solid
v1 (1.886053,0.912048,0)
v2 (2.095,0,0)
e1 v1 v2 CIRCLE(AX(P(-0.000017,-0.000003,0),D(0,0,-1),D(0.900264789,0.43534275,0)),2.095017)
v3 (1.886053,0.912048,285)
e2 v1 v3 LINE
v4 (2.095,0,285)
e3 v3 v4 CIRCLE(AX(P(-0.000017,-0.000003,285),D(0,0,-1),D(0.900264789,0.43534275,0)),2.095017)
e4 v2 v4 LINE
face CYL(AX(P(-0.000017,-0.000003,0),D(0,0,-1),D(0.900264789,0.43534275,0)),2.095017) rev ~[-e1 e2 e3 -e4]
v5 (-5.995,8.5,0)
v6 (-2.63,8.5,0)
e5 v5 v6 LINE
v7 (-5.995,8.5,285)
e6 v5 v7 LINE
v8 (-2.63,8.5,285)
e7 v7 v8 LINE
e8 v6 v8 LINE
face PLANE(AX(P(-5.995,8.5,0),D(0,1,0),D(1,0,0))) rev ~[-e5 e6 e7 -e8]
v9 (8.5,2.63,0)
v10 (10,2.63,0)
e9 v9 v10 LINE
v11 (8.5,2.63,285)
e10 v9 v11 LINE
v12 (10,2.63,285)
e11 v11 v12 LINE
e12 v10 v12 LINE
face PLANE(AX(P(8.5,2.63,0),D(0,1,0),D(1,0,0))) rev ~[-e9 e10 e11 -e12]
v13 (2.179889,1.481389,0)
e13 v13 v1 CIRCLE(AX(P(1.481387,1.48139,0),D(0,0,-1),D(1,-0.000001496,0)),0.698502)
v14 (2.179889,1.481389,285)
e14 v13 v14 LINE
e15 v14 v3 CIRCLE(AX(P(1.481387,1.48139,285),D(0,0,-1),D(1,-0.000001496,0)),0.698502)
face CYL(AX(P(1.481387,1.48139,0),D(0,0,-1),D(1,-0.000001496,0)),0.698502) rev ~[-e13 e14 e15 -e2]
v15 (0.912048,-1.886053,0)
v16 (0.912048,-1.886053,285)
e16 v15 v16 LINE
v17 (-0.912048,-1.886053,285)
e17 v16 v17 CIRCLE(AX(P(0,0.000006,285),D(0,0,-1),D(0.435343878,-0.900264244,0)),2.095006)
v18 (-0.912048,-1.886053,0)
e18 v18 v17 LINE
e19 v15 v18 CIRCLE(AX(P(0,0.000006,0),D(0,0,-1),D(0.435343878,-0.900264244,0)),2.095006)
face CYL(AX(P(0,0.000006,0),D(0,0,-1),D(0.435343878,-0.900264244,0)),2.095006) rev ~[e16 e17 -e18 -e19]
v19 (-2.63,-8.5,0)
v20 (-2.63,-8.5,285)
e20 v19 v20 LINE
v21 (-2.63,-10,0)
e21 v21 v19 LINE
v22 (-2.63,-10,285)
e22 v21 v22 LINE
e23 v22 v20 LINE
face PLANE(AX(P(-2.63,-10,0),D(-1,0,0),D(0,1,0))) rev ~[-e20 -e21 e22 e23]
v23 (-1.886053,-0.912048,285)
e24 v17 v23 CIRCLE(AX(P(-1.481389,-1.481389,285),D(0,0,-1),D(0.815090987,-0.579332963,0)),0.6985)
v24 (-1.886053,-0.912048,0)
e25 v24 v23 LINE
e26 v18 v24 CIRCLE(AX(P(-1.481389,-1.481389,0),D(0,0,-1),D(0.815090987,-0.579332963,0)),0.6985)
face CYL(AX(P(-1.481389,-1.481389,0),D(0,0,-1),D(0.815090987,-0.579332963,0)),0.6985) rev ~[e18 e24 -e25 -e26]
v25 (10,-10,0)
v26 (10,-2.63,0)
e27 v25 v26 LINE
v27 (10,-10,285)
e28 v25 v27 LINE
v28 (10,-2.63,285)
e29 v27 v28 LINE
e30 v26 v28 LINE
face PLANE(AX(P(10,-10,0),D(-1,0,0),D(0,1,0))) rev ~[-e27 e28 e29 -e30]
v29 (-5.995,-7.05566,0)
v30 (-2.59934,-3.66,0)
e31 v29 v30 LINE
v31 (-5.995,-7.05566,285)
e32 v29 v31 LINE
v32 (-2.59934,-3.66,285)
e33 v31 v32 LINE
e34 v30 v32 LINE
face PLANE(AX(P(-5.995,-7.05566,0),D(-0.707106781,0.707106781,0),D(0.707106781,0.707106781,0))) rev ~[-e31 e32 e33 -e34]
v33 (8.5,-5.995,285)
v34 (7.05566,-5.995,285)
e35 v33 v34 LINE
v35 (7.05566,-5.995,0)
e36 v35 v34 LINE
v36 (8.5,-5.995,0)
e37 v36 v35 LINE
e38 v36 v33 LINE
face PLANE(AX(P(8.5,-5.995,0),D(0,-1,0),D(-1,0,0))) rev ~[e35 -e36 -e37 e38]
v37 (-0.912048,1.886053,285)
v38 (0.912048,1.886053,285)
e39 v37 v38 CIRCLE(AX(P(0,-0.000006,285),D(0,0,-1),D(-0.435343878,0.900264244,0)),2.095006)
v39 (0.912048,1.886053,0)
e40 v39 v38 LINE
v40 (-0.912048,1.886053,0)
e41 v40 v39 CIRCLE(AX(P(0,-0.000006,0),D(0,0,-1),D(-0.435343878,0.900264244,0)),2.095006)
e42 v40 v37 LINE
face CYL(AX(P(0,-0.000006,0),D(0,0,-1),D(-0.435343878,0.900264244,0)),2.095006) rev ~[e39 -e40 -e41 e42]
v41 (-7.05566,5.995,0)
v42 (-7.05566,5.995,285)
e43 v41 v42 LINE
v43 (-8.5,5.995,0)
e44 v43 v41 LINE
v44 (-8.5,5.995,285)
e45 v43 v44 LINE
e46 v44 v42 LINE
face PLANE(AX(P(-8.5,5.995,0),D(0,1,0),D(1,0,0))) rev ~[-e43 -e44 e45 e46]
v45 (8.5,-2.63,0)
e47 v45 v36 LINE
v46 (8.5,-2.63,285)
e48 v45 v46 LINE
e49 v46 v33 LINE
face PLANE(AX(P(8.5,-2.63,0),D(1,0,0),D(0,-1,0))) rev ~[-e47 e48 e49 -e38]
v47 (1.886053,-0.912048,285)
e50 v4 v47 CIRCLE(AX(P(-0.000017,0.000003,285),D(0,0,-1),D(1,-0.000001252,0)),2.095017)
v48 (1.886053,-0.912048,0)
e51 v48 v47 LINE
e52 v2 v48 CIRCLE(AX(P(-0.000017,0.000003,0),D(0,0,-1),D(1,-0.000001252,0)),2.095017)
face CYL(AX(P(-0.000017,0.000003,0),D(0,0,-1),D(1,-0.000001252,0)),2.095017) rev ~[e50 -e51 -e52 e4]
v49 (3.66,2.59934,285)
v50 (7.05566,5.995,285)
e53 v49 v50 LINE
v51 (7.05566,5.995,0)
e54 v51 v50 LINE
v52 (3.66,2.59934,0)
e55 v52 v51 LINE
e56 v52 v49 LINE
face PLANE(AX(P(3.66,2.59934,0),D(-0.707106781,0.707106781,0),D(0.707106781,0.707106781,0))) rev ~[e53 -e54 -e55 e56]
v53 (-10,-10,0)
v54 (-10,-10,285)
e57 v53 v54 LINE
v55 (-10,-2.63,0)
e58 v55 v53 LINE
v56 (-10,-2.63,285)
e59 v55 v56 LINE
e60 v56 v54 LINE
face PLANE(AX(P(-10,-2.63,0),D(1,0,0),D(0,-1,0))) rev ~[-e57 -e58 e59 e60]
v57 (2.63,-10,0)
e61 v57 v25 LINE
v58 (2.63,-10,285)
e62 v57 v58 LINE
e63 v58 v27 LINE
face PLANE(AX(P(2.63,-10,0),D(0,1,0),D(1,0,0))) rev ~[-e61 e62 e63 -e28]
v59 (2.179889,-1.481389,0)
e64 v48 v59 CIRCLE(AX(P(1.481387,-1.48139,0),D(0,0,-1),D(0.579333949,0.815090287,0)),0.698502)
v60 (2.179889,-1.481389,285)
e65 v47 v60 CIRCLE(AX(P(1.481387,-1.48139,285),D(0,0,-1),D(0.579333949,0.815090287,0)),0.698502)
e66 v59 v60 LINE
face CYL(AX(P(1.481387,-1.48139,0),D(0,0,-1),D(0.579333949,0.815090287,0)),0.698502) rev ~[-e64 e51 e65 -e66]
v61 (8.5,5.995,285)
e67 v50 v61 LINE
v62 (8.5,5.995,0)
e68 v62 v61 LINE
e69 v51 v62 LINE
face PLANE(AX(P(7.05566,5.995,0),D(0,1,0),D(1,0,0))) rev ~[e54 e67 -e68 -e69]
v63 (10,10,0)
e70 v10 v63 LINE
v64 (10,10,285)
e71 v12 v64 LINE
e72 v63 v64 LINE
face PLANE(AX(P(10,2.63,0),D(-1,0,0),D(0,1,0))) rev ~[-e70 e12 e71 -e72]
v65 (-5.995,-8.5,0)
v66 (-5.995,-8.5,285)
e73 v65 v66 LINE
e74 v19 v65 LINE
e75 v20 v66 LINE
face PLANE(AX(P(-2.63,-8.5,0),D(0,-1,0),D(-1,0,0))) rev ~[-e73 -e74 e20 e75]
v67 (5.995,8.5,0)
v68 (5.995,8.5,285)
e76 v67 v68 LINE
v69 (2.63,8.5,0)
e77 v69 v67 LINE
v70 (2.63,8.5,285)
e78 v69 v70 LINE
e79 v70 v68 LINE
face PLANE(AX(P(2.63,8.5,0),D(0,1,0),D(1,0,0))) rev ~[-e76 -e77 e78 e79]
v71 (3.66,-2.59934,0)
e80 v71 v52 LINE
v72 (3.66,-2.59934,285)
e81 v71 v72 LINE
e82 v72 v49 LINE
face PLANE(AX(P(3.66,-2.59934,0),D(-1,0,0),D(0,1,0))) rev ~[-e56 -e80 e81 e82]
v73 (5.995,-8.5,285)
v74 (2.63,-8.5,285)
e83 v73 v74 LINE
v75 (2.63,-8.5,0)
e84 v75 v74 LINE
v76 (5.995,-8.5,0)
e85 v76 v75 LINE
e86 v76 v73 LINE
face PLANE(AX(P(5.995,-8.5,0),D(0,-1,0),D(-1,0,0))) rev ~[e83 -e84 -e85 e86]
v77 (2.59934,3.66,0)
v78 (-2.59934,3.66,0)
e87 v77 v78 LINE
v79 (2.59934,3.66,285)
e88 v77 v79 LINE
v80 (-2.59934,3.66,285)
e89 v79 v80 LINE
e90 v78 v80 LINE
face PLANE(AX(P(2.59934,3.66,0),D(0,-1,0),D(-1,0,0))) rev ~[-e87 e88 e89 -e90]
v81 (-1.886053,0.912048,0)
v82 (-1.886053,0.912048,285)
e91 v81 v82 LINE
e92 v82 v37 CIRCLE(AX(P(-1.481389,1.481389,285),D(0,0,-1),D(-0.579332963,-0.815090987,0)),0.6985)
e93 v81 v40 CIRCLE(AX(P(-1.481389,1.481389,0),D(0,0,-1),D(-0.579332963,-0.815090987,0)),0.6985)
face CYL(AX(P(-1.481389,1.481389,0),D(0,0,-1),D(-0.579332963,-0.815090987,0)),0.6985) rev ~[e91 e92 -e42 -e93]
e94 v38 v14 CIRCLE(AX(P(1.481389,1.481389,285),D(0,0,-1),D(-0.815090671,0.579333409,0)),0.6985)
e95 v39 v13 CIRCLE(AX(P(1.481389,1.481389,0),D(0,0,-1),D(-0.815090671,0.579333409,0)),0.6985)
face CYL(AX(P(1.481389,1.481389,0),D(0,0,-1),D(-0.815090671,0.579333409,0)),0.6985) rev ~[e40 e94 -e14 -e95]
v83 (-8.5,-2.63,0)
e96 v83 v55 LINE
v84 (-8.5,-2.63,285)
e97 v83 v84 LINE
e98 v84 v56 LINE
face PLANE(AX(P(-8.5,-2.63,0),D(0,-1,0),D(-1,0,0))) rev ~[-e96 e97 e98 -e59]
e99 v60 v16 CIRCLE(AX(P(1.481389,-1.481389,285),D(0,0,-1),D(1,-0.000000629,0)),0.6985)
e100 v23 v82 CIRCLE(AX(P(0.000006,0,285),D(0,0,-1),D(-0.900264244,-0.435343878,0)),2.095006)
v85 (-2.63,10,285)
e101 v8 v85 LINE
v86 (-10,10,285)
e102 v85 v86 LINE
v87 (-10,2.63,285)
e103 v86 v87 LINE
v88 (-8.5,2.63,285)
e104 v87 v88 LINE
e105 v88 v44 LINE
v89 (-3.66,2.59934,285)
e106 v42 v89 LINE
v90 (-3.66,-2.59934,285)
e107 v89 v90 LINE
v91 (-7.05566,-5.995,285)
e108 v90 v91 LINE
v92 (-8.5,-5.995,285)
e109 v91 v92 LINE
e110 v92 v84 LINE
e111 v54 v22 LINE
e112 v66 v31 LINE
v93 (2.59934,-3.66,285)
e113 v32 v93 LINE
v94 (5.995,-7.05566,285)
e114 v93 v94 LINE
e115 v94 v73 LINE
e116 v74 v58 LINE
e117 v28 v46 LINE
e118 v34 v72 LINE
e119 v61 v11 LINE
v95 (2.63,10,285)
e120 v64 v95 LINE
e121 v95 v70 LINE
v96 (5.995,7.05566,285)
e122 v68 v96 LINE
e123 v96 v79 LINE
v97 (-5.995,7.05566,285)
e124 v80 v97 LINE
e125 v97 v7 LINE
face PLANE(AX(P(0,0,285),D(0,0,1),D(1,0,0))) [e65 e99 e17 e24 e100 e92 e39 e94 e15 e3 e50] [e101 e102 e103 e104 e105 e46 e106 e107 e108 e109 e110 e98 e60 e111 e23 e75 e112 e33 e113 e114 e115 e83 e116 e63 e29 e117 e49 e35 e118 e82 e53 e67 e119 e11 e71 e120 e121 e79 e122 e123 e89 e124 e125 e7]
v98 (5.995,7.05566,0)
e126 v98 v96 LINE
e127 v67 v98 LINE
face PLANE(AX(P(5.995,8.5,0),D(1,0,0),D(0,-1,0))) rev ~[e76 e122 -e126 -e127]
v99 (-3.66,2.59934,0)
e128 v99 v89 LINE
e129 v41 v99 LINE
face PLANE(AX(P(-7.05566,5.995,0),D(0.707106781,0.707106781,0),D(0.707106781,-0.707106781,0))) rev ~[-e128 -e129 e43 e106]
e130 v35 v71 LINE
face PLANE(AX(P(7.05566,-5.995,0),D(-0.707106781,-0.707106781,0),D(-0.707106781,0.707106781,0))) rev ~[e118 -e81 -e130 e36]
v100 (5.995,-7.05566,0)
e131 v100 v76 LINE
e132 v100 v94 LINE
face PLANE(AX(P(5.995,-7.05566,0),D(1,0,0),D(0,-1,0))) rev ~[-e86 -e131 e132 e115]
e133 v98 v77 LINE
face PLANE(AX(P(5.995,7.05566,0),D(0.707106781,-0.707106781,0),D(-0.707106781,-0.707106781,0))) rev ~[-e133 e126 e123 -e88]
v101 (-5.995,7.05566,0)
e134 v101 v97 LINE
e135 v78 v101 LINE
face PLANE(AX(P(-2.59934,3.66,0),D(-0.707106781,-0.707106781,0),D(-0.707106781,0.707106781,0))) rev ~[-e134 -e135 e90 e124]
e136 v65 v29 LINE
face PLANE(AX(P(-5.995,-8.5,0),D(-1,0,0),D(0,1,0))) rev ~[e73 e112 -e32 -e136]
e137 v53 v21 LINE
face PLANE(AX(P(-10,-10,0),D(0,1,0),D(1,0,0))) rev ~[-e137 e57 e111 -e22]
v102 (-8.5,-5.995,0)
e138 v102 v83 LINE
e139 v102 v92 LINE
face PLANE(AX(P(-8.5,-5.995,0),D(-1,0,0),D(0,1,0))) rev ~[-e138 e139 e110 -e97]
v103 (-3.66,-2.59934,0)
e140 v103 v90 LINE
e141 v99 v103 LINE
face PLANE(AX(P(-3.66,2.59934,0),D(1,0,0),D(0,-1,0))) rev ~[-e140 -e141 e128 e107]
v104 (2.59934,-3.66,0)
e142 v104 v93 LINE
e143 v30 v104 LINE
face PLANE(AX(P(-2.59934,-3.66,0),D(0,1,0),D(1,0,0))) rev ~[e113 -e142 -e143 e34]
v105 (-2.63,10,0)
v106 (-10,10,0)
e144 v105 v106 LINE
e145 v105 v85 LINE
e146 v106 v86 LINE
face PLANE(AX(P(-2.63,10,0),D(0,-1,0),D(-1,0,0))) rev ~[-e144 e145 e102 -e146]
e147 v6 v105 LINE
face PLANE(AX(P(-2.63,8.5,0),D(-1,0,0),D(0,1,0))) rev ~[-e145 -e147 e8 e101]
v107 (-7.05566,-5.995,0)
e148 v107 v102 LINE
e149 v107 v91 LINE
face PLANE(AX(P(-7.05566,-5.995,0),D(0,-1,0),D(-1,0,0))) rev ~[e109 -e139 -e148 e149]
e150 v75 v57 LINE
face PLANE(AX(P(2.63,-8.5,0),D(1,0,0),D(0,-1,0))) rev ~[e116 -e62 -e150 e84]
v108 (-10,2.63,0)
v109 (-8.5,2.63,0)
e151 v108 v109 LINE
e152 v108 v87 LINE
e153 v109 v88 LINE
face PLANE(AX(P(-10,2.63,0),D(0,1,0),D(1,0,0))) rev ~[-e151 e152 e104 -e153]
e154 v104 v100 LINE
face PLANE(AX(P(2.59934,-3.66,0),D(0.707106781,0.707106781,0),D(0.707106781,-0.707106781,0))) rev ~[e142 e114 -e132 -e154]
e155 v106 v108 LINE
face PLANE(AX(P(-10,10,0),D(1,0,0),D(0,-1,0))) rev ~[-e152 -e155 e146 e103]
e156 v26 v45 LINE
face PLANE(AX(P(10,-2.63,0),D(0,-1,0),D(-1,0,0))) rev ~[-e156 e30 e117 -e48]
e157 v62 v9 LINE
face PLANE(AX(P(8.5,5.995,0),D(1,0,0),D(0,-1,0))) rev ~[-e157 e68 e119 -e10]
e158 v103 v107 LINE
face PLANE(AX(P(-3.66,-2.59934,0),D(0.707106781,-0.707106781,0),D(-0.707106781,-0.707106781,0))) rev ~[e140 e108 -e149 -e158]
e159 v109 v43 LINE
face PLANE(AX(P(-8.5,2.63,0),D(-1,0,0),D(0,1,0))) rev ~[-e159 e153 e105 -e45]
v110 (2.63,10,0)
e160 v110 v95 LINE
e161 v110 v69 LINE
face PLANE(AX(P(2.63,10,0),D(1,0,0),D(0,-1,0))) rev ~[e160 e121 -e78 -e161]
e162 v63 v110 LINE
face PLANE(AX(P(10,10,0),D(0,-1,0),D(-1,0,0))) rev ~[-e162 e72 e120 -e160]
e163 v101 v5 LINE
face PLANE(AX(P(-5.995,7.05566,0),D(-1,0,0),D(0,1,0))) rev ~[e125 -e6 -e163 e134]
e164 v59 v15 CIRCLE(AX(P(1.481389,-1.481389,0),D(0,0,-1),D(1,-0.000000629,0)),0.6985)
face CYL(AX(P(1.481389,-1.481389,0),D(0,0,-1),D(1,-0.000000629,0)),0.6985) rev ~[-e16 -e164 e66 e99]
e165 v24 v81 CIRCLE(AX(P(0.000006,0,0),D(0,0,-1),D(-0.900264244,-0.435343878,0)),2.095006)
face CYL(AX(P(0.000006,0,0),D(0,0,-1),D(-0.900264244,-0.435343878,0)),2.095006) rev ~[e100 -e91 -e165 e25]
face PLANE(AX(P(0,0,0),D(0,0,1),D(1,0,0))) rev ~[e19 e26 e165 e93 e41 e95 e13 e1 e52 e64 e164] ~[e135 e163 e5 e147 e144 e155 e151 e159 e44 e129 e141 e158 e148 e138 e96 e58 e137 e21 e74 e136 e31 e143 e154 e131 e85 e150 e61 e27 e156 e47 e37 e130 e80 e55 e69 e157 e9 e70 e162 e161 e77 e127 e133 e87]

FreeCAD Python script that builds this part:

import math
import FreeCAD as App
import Part
import Sketcher

V = App.Vector
Q = App.Units.Quantity


def add_polygon(sketch, points):
    """Adds a closed chain of lines whose ends are joined by coincident constraints."""
    first, n = sketch.GeometryCount, len(points)
    for a, b in zip(points, points[1:] + points[:1]):
        sketch.addGeometry(Part.LineSegment(App.Vector(*a, 0), App.Vector(*b, 0)), False)
    for i in range(n):
        sketch.addConstraint(Sketcher.Constraint("Coincident", first + i, 2, first + (i + 1) % n, 1))

doc = App.newDocument("Part")
params = doc.addObject("Spreadsheet::Sheet", "Params")
for row, (alias, value) in enumerate([
    ("sketch1_width", "1.5 mm"),
    ("sketch1_width2", "7.37 mm"),
    ("pad1_length", "285 mm"),
], start=1):
    params.set(f"A{row}", alias)
    params.set(f"B{row}", "=" + value)
    params.setAlias(f"B{row}", alias)

body = doc.addObject("PartDesign::Body", "Body")

sketch1 = body.newObject("Sketcher::SketchObject", "Sketch")
sketch1.AttachmentSupport = (doc.getObject("XY_Plane"), [""])
sketch1.MapMode = "FlatFace"
add_polygon(sketch1, [(10, 2.63), (10, 10), (2.63, 10), (2.63, 8.5), (5.995, 8.5), (5.995, 7.05566), (2.59934, 3.66), (-2.59934, 3.66), (-5.995, 7.05566), (-5.995, 8.5), (-2.63, 8.5), (-2.63, 10), (-10, 10), (-10, 2.63), (-8.5, 2.63), (-8.5, 5.995), (-7.05566, 5.995), (-3.66, 2.59934), (-3.66, -2.59934), (-7.05566, -5.995), (-8.5, -5.995), (-8.5, -2.63), (-10, -2.63), (-10, -10), (-2.63, -10), (-2.63, -8.5), (-5.995, -8.5), (-5.995, -7.05566), (-2.59934, -3.66), (2.59934, -3.66), (5.995, -7.05566), (5.995, -8.5), (2.63, -8.5), (2.63, -10), (10, -10), (10, -2.63), (8.5, -2.63), (8.5, -5.995), (7.05566, -5.995), (3.66, -2.59934), (3.66, 2.59934), (7.05566, 5.995), (8.5, 5.995), (8.5, 2.63)])
sketch1.addGeometry(Part.ArcOfCircle(Part.Circle(V(1.481387, 1.48139, 0), V(0, 0, 1), 0.698502), math.radians(-54.59629), math.radians(-0.000086)), False)
sketch1.addGeometry(Part.ArcOfCircle(Part.Circle(V(-0.000017, -0.000003, 0), V(0, 0, 1), 2.095017), math.radians(0.000072), math.radians(25.807106)), False)
sketch1.addGeometry(Part.ArcOfCircle(Part.Circle(V(-0.000017, 0.000003, 0), V(0, 0, 1), 2.095017), math.radians(-25.807106), math.radians(-0.000072)), False)
sketch1.addGeometry(Part.ArcOfCircle(Part.Circle(V(1.481387, -1.48139, 0), V(0, 0, 1), 0.698502), math.radians(0.000086), math.radians(54.59629)), False)
sketch1.addGeometry(Part.ArcOfCircle(Part.Circle(V(1.481389, -1.481389, 0), V(0, 0, 1), 0.6985), math.radians(-144.596328), math.radians(-0.000036)), False)
sketch1.addGeometry(Part.ArcOfCircle(Part.Circle(V(0, 0.000006, 0), V(0, 0, 1), 2.095006), math.radians(-115.807177), math.radians(-64.192823)), False)
sketch1.addGeometry(Part.ArcOfCircle(Part.Circle(V(-1.481389, -1.481389, 0), V(0, 0, 1), 0.6985), math.radians(125.40364), math.radians(324.59636)), False)
sketch1.addGeometry(Part.ArcOfCircle(Part.Circle(V(0.000006, 0, 0), V(0, 0, 1), 2.095006), math.radians(154.192823), math.radians(205.807177)), False)
sketch1.addGeometry(Part.ArcOfCircle(Part.Circle(V(-1.481389, 1.481389, 0), V(0, 0, 1), 0.6985), math.radians(35.40364), math.radians(234.59636)), False)
sketch1.addGeometry(Part.ArcOfCircle(Part.Circle(V(0, -0.000006, 0), V(0, 0, 1), 2.095006), math.radians(64.192823), math.radians(115.807177)), False)
sketch1.addGeometry(Part.ArcOfCircle(Part.Circle(V(1.481389, 1.481389, 0), V(0, 0, 1), 0.6985), math.radians(0.000036), math.radians(144.596328)), False)
sketch1.addConstraint(Sketcher.Constraint("Coincident", 44, 1, 45, 2))
sketch1.addConstraint(Sketcher.Constraint("Coincident", 45, 1, 46, 2))
sketch1.addConstraint(Sketcher.Constraint("Coincident", 46, 1, 47, 2))
sketch1.addConstraint(Sketcher.Constraint("Coincident", 47, 1, 48, 2))
sketch1.addConstraint(Sketcher.Constraint("Coincident", 48, 1, 49, 2))
sketch1.addConstraint(Sketcher.Constraint("Coincident", 49, 1, 50, 2))
sketch1.addConstraint(Sketcher.Constraint("Coincident", 50, 1, 51, 2))
sketch1.addConstraint(Sketcher.Constraint("Coincident", 51, 1, 52, 2))
sketch1.addConstraint(Sketcher.Constraint("Coincident", 52, 1, 53, 2))
sketch1.addConstraint(Sketcher.Constraint("Coincident", 53, 1, 54, 2))
sketch1.addConstraint(Sketcher.Constraint("Coincident", 54, 1, 44, 2))
sketch1.addConstraint(Sketcher.Constraint("Vertical", 0))
sketch1.addConstraint(Sketcher.Constraint("Horizontal", 1))
sketch1.addConstraint(Sketcher.Constraint("Vertical", 2))
sketch1.addConstraint(Sketcher.Constraint("Horizontal", 3))
sketch1.addConstraint(Sketcher.Constraint("Vertical", 4))
sketch1.addConstraint(Sketcher.Constraint("Horizontal", 6))
sketch1.addConstraint(Sketcher.Constraint("Vertical", 8))
sketch1.addConstraint(Sketcher.Constraint("Horizontal", 9))
sketch1.addConstraint(Sketcher.Constraint("Vertical", 10))
sketch1.addConstraint(Sketcher.Constraint("Horizontal", 11))
sketch1.addConstraint(Sketcher.Constraint("Vertical", 12))
sketch1.addConstraint(Sketcher.Constraint("Horizontal", 13))
sketch1.addConstraint(Sketcher.Constraint("Vertical", 14))
sketch1.addConstraint(Sketcher.Constraint("Horizontal", 15))
sketch1.addConstraint(Sketcher.Constraint("Vertical", 17))
sketch1.addConstraint(Sketcher.Constraint("Horizontal", 19))
sketch1.addConstraint(Sketcher.Constraint("Vertical", 20))
sketch1.addConstraint(Sketcher.Constraint("Horizontal", 21))
sketch1.addConstraint(Sketcher.Constraint("Vertical", 22))
sketch1.addConstraint(Sketcher.Constraint("Horizontal", 23))
sketch1.addConstraint(Sketcher.Constraint("Vertical", 24))
sketch1.addConstraint(Sketcher.Constraint("Horizontal", 25))
sketch1.addConstraint(Sketcher.Constraint("Vertical", 26))
sketch1.addConstraint(Sketcher.Constraint("Horizontal", 28))
sketch1.addConstraint(Sketcher.Constraint("Vertical", 30))
sketch1.addConstraint(Sketcher.Constraint("Horizontal", 31))
sketch1.addConstraint(Sketcher.Constraint("Vertical", 32))
sketch1.addConstraint(Sketcher.Constraint("Horizontal", 33))
sketch1.addConstraint(Sketcher.Constraint("Vertical", 34))
sketch1.addConstraint(Sketcher.Constraint("Horizontal", 35))
sketch1.addConstraint(Sketcher.Constraint("Vertical", 36))
sketch1.addConstraint(Sketcher.Constraint("Horizontal", 37))
sketch1.addConstraint(Sketcher.Constraint("Vertical", 39))
sketch1.addConstraint(Sketcher.Constraint("Horizontal", 41))
sketch1.addConstraint(Sketcher.Constraint("Vertical", 42))
sketch1.addConstraint(Sketcher.Constraint("Horizontal", 43))
sketch1.addConstraint(Sketcher.Constraint("Coincident", 49, 3, -1, 1))
sketch1.addConstraint(Sketcher.Constraint("Coincident", 51, 3, -1, 1))
sketch1.addConstraint(Sketcher.Constraint("Coincident", 53, 3, -1, 1))
sketch1.addConstraint(Sketcher.Constraint("Coincident", 46, 3, 45, 3))
sketch1.addConstraint(Sketcher.Constraint("Coincident", 48, 3, 47, 3))
sketch1.addConstraint(Sketcher.Constraint("Coincident", 54, 3, 44, 3))
sketch1.addConstraint(Sketcher.Constraint("Equal", 44, 47))
sketch1.addConstraint(Sketcher.Constraint("Equal", 48, 50))
sketch1.addConstraint(Sketcher.Constraint("Equal", 49, 51))
sketch1.addConstraint(Sketcher.Constraint("Equal", 50, 52))
sketch1.addConstraint(Sketcher.Constraint("Equal", 51, 53))
sketch1.addConstraint(Sketcher.Constraint("Symmetric", 44, 3, 50, 3, -1, 1))
sketch1.addConstraint(Sketcher.Constraint("Symmetric", 47, 3, 52, 3, -1, 1))
sketch1.addConstraint(Sketcher.Constraint("Symmetric", 0, 2, 22, 2, -1, 1))
sketch1.addConstraint(Sketcher.Constraint("Symmetric", 2, 2, 24, 2, -1, 1))
sketch1.addConstraint(Sketcher.Constraint("Symmetric", 4, 2, 26, 2, -1, 1))
sketch1.addConstraint(Sketcher.Constraint("Symmetric", 5, 2, 27, 2, -1, 1))
sketch1.addConstraint(Sketcher.Constraint("Symmetric", 7, 2, 29, 2, -1, 1))
sketch1.addConstraint(Sketcher.Constraint("Symmetric", 9, 2, 31, 2, -1, 1))
sketch1.addConstraint(Sketcher.Constraint("Symmetric", 11, 2, 33, 2, -1, 1))
sketch1.addConstraint(Sketcher.Constraint("Symmetric", 13, 2, 35, 2, -1, 1))
sketch1.addConstraint(Sketcher.Constraint("Symmetric", 15, 2, 37, 2, -1, 1))
sketch1.addConstraint(Sketcher.Constraint("Symmetric", 16, 2, 38, 2, -1, 1))
sketch1.addConstraint(Sketcher.Constraint("Symmetric", 18, 2, 40, 2, -1, 1))
sketch1.addConstraint(Sketcher.Constraint("Symmetric", 20, 2, 42, 2, -1, 1))
sketch1.addConstraint(Sketcher.Constraint("Symmetric", 47, 3, 50, 3, -2))
sketch1.addConstraint(Sketcher.Constraint("Symmetric", 4, 2, 7, 2, -2))
sketch1.addConstraint(Sketcher.Constraint("Symmetric", 2, 2, 9, 2, -2))
sketch1.addConstraint(Sketcher.Constraint("Symmetric", 0, 2, 11, 2, -2))
sketch1.addConstraint(Sketcher.Constraint("Symmetric", 20, 2, 35, 2, -2))
sketch1.addConstraint(Sketcher.Constraint("Symmetric", 18, 2, 37, 2, -2))
sketch1.addConstraint(Sketcher.Constraint("PointOnObject", 45, 1, -1))
sketch1.addConstraint(Sketcher.Constraint("Perpendicular", 5, 7))
sketch1.addConstraint(Sketcher.Constraint("Parallel", 7, 16))
sketch1.addConstraint(Sketcher.Constraint("Perpendicular", 16, 18))
sketch1.addConstraint(Sketcher.Constraint("Perpendicular", 27, 29))
sketch1.addConstraint(Sketcher.Constraint("Perpendicular", 38, 40))
sketch1.addConstraint(Sketcher.Constraint("Horizontal", 17, 2, 38, 2))
sketch1.addConstraint(Sketcher.Constraint("Horizontal", 50, 3, 47, 1))
sketch1.addConstraint(Sketcher.Constraint("Horizontal", 46, 1, 50, 1))
sketch1.addConstraint(Sketcher.Constraint("Horizontal", 44, 1, 51, 1))
sketch1.addConstraint(Sketcher.Constraint("Horizontal", 52, 3, 54, 1))
sketch1.addConstraint(Sketcher.Constraint("Equal", 33, 0))
sketch1.addConstraint(Sketcher.Constraint("Equal", 43, 2))
sketch1.addConstraint(Sketcher.Constraint("Equal", 41, 4))
sketch1.addConstraint(Sketcher.Constraint("Equal", 31, 14))
sketch1.addConstraint(Sketcher.Constraint("Equal", 28, 17))
sketch1.addConstraint(Sketcher.Constraint("Equal", 7, 16))
sketch1.addConstraint(Sketcher.Constraint("DistanceX", 13, 1, 13, 2, Q("1.5 mm")))
sketch1.addConstraint(Sketcher.Constraint("DistanceX", -1, 1, 0, 2, Q("10 mm")))
sketch1.addConstraint(Sketcher.Constraint("DistanceX", 1, 2, 1, 1, Q("7.37 mm")))
sketch1.addConstraint(Sketcher.Constraint("Radius", 44, Q("0.698502 mm")))
sketch1.addConstraint(Sketcher.Constraint("DistanceX", 3, 1, 3, 2, Q("3.365 mm")))
sketch1.addConstraint(Sketcher.Constraint("DistanceY", -1, 1, 5, 2, Q("3.66 mm")))
sketch1.addConstraint(Sketcher.Constraint("DistanceX", -1, 1, 45, 1, Q("2.095 mm")))
sketch1.addConstraint(Sketcher.Constraint("Radius", 45, Q("2.095017 mm")))
sketch1.addConstraint(Sketcher.Constraint("DistanceX", 6, 2, 6, 1, Q("5.19868 mm")))
sketch1.addConstraint(Sketcher.Constraint("DistanceY", -1, 1, 44, 3, Q("1.48139 mm")))
sketch1.addConstraint(Sketcher.Constraint("DistanceX", -1, 1, 48, 3, Q("1.481389 mm")))
sketch1.setExpression("Constraints[139]", "Params.sketch1_width")
sketch1.setExpression("Constraints[141]", "Params.sketch1_width2")
pad1 = body.newObject("PartDesign::Pad", "Pad")
pad1.Profile = sketch1
pad1.setExpression("Length", "Params.pad1_length")

doc.recompute()
